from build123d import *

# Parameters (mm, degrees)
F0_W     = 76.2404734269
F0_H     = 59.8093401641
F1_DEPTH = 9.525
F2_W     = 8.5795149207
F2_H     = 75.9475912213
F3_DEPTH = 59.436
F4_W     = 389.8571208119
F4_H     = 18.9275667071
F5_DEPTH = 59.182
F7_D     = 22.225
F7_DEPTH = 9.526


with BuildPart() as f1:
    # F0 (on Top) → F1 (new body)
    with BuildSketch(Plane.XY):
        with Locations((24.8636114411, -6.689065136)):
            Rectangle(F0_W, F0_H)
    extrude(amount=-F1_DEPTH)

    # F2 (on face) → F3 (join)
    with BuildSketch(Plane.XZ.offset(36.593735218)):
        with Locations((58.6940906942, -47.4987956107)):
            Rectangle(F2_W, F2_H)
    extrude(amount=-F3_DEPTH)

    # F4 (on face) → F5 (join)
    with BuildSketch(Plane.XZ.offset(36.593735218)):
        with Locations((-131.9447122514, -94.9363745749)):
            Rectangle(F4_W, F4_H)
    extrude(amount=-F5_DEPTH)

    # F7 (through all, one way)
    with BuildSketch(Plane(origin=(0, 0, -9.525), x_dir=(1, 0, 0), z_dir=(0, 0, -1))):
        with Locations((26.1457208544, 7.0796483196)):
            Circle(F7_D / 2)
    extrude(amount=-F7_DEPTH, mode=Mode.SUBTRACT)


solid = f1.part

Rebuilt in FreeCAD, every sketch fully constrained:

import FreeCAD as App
import Part
import Sketcher
Q = App.Units.Quantity


def add_polygon(sketch, points):
    """Adds a closed chain of lines whose ends are joined by coincident constraints."""
    first, n = sketch.GeometryCount, len(points)
    for a, b in zip(points, points[1:] + points[:1]):
        sketch.addGeometry(Part.LineSegment(App.Vector(*a, 0), App.Vector(*b, 0)), False)
    for i in range(n):
        sketch.addConstraint(Sketcher.Constraint("Coincident", first + i, 2, first + (i + 1) % n, 1))

doc = App.newDocument("Part")
body = doc.addObject("PartDesign::Body", "Body")

# Sketch on XY plane
sketch1 = body.newObject("Sketcher::SketchObject", "Sketch")
sketch1.AttachmentSupport = (doc.getObject("XY_Plane"), [""])
sketch1.MapMode = "FlatFace"
add_polygon(sketch1, [(-13, 23), (-13, -37), (63, -37), (63, 23)])  # lines 0-3
sketch1.addConstraint(Sketcher.Constraint("Vertical", 0))
sketch1.addConstraint(Sketcher.Constraint("Horizontal", 1))
sketch1.addConstraint(Sketcher.Constraint("Vertical", 2))
sketch1.addConstraint(Sketcher.Constraint("Horizontal", 3))
sketch1.addConstraint(Sketcher.Constraint("DistanceY", -1, 1, 2, 2, Q("0.9140002 in")))
sketch1.addConstraint(Sketcher.Constraint("DistanceY", 0, 2, 0, 1, Q("59.80934 mm")))
sketch1.addConstraint(Sketcher.Constraint("DistanceX", 1, 1, 1, 2, Q("76.240473 mm")))
sketch1.addConstraint(Sketcher.Constraint("DistanceX", -1, 1, 1, 2, Q("62.983848 mm")))
pad1 = body.newObject("PartDesign::Pad", "Pad")
pad1.Profile = sketch1
pad1.Length = Q("0.375 in")
pad1.Reversed = True

# Sketch on XZ plane
sketch2 = body.newObject("Sketcher::SketchObject", "Sketch001")
sketch2.AttachmentSupport = (doc.getObject("XZ_Plane"), [""])
sketch2.MapMode = "FlatFace"
sketch2.AttachmentOffset = App.Placement(App.Vector(0, 0, 36.593735), App.Rotation())
add_polygon(sketch2, [(54, -10), (54, -85), (63, -85), (63, -10)])  # lines 0-3
sketch2.addConstraint(Sketcher.Constraint("Vertical", 0))
sketch2.addConstraint(Sketcher.Constraint("Horizontal", 1))
sketch2.addConstraint(Sketcher.Constraint("Vertical", 2))
sketch2.addConstraint(Sketcher.Constraint("Horizontal", 3))
sketch2.addConstraint(Sketcher.Constraint("DistanceY", 2, 2, -1, 1, Q("0.375 in")))
sketch2.addConstraint(Sketcher.Constraint("DistanceY", 0, 2, 0, 1, Q("75.947591 mm")))
sketch2.addConstraint(Sketcher.Constraint("DistanceX", 1, 1, 1, 2, Q("8.579515 mm")))
sketch2.addConstraint(Sketcher.Constraint("DistanceX", -1, 1, 1, 2, Q("62.983848 mm")))
pad2 = body.newObject("PartDesign::Pad", "Pad001")
pad2.Profile = sketch2
pad2.Length = Q("2.34 in")
pad2.Reversed = True

# Sketch on XZ plane
sketch3 = body.newObject("Sketcher::SketchObject", "Sketch002")
sketch3.AttachmentSupport = (doc.getObject("XZ_Plane"), [""])
sketch3.MapMode = "FlatFace"
sketch3.AttachmentOffset = App.Placement(App.Vector(0, 0, 36.593735), App.Rotation())
add_polygon(sketch3, [(-327, -85), (-327, -104), (63, -104), (63, -85)])  # lines 0-3
sketch3.addConstraint(Sketcher.Constraint("Vertical", 0))
sketch3.addConstraint(Sketcher.Constraint("Horizontal", 1))
sketch3.addConstraint(Sketcher.Constraint("Vertical", 2))
sketch3.addConstraint(Sketcher.Constraint("Horizontal", 3))
sketch3.addConstraint(Sketcher.Constraint("DistanceX", 1, 1, 1, 2, Q("389.857121 mm")))
sketch3.addConstraint(Sketcher.Constraint("DistanceY", 0, 2, 0, 1, Q("18.927567 mm")))
sketch3.addConstraint(Sketcher.Constraint("DistanceX", -1, 1, 1, 2, Q("62.983848 mm")))
sketch3.addConstraint(Sketcher.Constraint("DistanceY", 2, 2, -1, 1, Q("85.472591 mm")))
pad3 = body.newObject("PartDesign::Pad", "Pad002")
pad3.Profile = sketch3
pad3.Length = Q("2.33 in")
pad3.Reversed = True

# Sketch on XY plane
sketch4 = body.newObject("Sketcher::SketchObject", "Sketch003")
sketch4.AttachmentSupport = (doc.getObject("XY_Plane"), [""])
sketch4.MapMode = "FlatFace"
sketch4.AttachmentOffset = App.Placement(App.Vector(0, 0, -0.375 * 25.4), App.Rotation())
sketch4.addGeometry(Part.Circle(App.Vector(26, -7, 0), App.Vector(0, 0, 1), 11), False)
sketch4.addConstraint(Sketcher.Constraint("Diameter", 0, Q("0.875 in")))
sketch4.addConstraint(Sketcher.Constraint("DistanceX", -1, 1, 0, 3, Q("26.145721 mm")))
sketch4.addConstraint(Sketcher.Constraint("DistanceY", 0, 3, -1, 1, Q("7.079648 mm")))
pocket1 = body.newObject("PartDesign::Pocket", "Pocket")
pocket1.Profile = sketch4
pocket1.Type = "ThroughAll"
pocket1.Reversed = True

doc.recompute()
